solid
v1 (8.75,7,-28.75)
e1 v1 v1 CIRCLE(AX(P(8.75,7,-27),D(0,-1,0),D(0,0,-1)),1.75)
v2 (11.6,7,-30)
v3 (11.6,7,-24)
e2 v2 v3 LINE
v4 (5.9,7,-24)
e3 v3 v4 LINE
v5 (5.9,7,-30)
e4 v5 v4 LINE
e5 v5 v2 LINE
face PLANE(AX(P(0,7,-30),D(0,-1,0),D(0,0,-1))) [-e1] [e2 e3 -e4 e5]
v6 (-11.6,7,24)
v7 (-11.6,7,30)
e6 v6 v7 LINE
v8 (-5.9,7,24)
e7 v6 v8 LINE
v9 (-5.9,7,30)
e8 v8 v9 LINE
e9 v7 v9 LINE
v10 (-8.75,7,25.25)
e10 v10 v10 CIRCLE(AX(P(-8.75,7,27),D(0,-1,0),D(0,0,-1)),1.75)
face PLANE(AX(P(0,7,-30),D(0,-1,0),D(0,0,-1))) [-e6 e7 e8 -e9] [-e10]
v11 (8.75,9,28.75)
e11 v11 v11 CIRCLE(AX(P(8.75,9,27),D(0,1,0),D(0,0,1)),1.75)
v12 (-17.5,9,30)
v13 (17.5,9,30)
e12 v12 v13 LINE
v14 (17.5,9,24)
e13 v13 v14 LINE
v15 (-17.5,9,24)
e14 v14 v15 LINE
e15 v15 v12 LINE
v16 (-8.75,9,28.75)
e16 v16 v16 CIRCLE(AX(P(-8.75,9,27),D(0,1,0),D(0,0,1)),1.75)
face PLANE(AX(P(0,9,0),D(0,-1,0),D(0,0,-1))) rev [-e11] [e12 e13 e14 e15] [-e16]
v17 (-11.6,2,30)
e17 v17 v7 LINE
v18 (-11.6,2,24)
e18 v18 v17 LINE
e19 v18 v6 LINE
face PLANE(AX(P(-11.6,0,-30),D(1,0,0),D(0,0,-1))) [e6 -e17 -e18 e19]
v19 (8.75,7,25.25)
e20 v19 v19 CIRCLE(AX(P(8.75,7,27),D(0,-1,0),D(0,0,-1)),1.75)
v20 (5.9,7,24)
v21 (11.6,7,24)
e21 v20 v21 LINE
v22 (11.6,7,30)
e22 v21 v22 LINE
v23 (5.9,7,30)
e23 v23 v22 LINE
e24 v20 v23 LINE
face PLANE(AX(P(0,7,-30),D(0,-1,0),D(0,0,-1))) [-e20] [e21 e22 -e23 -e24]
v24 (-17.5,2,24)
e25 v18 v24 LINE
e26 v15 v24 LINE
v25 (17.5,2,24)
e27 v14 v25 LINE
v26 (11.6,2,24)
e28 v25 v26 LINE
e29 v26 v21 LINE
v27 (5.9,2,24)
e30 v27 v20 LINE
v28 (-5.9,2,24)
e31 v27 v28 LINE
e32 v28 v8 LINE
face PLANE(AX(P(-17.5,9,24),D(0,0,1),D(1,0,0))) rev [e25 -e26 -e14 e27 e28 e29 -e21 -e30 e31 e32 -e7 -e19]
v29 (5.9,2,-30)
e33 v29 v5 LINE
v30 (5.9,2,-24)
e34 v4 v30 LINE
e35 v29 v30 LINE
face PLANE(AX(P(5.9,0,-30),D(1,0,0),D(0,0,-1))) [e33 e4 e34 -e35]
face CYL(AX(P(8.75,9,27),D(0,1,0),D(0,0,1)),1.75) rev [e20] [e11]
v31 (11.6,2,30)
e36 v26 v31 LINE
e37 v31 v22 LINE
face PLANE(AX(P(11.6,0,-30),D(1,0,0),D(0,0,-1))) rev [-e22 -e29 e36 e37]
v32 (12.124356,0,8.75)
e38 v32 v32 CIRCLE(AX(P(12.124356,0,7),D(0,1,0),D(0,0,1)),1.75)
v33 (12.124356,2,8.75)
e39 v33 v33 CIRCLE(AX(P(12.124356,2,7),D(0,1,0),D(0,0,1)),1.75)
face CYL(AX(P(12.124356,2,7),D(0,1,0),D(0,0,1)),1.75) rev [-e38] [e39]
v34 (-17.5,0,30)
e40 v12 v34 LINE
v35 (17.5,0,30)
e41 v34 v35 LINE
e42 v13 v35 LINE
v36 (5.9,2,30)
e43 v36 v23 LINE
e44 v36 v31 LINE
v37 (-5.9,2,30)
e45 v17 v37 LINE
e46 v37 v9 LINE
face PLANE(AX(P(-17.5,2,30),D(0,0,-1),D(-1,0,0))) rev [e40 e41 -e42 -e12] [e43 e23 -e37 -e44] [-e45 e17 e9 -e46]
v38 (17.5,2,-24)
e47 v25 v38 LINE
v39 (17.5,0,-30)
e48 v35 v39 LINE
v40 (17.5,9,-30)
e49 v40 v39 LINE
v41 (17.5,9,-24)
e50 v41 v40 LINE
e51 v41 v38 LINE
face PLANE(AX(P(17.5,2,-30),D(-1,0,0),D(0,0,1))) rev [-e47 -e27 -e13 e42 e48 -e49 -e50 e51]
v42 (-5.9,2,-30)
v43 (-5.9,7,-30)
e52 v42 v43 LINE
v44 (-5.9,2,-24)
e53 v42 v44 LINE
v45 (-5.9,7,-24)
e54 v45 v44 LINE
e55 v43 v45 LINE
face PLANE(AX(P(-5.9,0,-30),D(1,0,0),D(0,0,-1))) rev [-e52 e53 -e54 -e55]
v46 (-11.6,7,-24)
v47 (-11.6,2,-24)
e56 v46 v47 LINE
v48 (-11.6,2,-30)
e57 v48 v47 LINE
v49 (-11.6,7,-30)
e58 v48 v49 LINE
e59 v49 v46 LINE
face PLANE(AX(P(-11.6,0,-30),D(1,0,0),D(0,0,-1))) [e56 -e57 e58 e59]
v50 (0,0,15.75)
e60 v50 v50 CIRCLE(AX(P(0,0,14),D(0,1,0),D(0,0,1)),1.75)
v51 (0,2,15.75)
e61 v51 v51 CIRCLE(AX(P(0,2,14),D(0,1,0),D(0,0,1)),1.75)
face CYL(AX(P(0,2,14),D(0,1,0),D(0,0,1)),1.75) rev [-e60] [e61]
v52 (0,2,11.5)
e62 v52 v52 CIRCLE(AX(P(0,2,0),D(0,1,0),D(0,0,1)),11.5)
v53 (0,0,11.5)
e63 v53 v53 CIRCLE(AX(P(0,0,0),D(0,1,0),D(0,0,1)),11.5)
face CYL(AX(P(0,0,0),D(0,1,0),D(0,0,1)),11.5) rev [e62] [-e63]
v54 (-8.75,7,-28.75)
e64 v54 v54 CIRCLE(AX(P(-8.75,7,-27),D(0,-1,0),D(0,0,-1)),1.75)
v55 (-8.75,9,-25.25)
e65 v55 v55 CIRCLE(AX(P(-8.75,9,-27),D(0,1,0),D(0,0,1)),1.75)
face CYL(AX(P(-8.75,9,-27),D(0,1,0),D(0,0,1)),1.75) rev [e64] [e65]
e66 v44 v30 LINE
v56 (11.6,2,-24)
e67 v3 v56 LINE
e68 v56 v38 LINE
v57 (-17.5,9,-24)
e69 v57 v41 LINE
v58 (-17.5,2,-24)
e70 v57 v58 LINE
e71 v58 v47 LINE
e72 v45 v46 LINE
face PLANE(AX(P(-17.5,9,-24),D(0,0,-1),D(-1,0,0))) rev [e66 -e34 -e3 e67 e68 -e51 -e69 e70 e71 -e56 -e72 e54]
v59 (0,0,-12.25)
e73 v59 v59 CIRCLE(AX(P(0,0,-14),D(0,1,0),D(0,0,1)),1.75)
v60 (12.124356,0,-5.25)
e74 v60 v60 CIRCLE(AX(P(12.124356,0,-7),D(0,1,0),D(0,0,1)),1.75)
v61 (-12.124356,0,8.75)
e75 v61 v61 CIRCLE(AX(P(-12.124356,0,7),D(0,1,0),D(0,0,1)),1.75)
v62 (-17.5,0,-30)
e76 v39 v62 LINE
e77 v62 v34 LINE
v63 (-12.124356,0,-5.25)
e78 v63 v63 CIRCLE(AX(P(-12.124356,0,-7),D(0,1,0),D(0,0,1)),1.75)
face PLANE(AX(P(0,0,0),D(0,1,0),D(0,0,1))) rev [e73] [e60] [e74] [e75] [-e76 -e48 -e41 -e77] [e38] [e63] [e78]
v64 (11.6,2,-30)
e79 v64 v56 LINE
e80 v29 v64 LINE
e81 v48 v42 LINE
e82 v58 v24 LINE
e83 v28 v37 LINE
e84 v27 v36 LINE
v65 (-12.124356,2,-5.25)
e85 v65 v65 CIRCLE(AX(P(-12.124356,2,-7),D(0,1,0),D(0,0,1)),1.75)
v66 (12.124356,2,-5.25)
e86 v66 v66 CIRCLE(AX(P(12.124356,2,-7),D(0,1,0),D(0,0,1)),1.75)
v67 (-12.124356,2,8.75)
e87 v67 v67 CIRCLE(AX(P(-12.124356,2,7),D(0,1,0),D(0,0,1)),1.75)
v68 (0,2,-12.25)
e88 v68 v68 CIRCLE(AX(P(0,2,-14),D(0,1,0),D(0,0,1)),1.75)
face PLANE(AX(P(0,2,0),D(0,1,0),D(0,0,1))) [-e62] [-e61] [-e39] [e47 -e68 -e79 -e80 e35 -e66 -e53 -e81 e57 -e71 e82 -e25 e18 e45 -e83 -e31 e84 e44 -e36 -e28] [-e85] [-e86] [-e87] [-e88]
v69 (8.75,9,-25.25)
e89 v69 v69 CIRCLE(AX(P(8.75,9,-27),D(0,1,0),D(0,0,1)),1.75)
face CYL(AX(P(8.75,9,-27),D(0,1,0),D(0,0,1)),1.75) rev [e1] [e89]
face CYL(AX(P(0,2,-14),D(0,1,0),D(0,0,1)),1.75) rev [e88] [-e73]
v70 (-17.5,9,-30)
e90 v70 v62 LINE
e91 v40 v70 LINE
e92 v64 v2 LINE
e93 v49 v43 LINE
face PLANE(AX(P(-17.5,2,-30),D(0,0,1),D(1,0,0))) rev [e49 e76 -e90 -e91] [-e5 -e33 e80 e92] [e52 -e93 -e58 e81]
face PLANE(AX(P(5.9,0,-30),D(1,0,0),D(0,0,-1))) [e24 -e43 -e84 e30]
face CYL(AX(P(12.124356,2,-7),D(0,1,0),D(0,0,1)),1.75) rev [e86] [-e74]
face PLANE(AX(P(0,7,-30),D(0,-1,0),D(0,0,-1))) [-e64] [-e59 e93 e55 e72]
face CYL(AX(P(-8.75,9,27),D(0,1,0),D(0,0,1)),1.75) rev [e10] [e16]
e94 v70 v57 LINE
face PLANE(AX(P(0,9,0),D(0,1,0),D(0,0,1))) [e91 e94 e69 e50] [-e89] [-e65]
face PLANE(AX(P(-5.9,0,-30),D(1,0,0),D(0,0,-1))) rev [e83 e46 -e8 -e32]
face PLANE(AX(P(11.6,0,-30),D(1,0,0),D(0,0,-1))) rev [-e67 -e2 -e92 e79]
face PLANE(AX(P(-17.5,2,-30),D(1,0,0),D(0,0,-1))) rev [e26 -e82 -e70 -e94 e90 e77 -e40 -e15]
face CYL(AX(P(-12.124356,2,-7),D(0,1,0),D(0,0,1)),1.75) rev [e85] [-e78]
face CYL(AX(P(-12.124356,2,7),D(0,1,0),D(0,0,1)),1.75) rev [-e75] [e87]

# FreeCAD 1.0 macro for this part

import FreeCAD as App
import Part
import Sketcher
Q = App.Units.Quantity

doc = App.newDocument("Part")
params = doc.addObject("Spreadsheet::Sheet", "Params")
for row, (alias, value) in enumerate([
    ("sketch1_width", "35 mm"),
    ("sketch1_height", "60 mm"),
    ("pad1_length", "2 mm"),
    ("sketch2_diameter", "3.5 mm"),
    ("hole_diameter", "3.5 mm"),
    ("sketch3_diameter", "23 mm"),
    ("pocket1_length", "2 mm"),
    ("sketch4_width", "35 mm"),
    ("sketch4_height", "6 mm"),
    ("pad2_length", "7 mm"),
    ("sketch5_height", "5 mm"),
    ("sketch5_width", "5.7 mm"),
    ("sketch6_diameter", "3.5 mm"),
    ("hole2_diameter", "3.5 mm"),
    ("hole2_depth", "2 mm"),
], start=1):
    params.set(f"A{row}", alias)
    params.set(f"B{row}", "=" + value)
    params.setAlias(f"B{row}", alias)

body = doc.addObject("PartDesign::Body", "Body")

# Sketch on XZ plane
sketch1 = body.newObject("Sketcher::SketchObject", "Sketch")
sketch1.AttachmentSupport = (doc.getObject("XZ_Plane"), [""])
sketch1.MapMode = "FlatFace"
sketch1.addGeometry(Part.LineSegment(App.Vector(-18, -30, 0), App.Vector(-18, 30, 0)), False)
sketch1.addGeometry(Part.LineSegment(App.Vector(-18, 30, 0), App.Vector(18, 30, 0)), False)
sketch1.addGeometry(Part.LineSegment(App.Vector(18, 30, 0), App.Vector(18, -30, 0)), False)
sketch1.addGeometry(Part.LineSegment(App.Vector(18, -30, 0), App.Vector(-18, -30, 0)), False)
sketch1.addConstraint(Sketcher.Constraint("Coincident", 0, 2, 1, 1))
sketch1.addConstraint(Sketcher.Constraint("Coincident", 1, 2, 2, 1))
sketch1.addConstraint(Sketcher.Constraint("Coincident", 2, 2, 3, 1))
sketch1.addConstraint(Sketcher.Constraint("Coincident", 3, 2, 0, 1))
sketch1.addConstraint(Sketcher.Constraint("Vertical", 0))
sketch1.addConstraint(Sketcher.Constraint("Horizontal", 1))
sketch1.addConstraint(Sketcher.Constraint("Vertical", 2))
sketch1.addConstraint(Sketcher.Constraint("Horizontal", 3))
sketch1.addConstraint(Sketcher.Constraint("Symmetric", 0, 2, 2, 2, -1, 1))
sketch1.addConstraint(Sketcher.Constraint("DistanceX", 1, 1, 1, 2, Q("35 mm")))
sketch1.addConstraint(Sketcher.Constraint("DistanceY", 0, 1, 0, 2, Q("60 mm")))
sketch1.setExpression("Constraints[9]", "Params.sketch1_width")
sketch1.setExpression("Constraints[10]", "Params.sketch1_height")
pad1 = body.newObject("PartDesign::Pad", "Pad")
pad1.Profile = sketch1
pad1.setExpression("Length", "Params.pad1_length")
pad1.Reversed = True

# Sketch on XZ plane
sketch2 = body.newObject("Sketcher::SketchObject", "Sketch001")
sketch2.AttachmentSupport = (doc.getObject("XZ_Plane"), [""])
sketch2.MapMode = "FlatFace"
sketch2.AttachmentOffset = App.Placement(App.Vector(0, 0, -2), App.Rotation())
sketch2.addGeometry(Part.Circle(App.Vector(0, -14, 0), App.Vector(0, 0, 1), 1.8), False)
sketch2.addConstraint(Sketcher.Constraint("PointOnObject", 0, 3, -2))
sketch2.addConstraint(Sketcher.Constraint("Diameter", 0, Q("3.5 mm")))
sketch2.addConstraint(Sketcher.Constraint("DistanceY", 0, 3, -1, 1, Q("14 mm")))
sketch2.setExpression("Constraints[1]", "Params.sketch2_diameter")
doc.recompute()
hole = body.newObject("PartDesign::Hole", "Hole")
hole.Profile = sketch2
hole.ThreadType = "None"
hole.setExpression("Diameter", "Params.hole_diameter")
hole.DepthType = "ThroughAll"
hole.Reversed = True
doc.recompute()

polarpattern = body.newObject("PartDesign::PolarPattern", "PolarPattern")
polarpattern.Originals = [hole]
polarpattern.Axis = (doc.getObject("Y_Axis"), [""])
polarpattern.Angle = 360
polarpattern.Occurrences = 6
body.Tip = polarpattern

# Sketch on XZ plane
sketch3 = body.newObject("Sketcher::SketchObject", "Sketch002")
sketch3.AttachmentSupport = (doc.getObject("XZ_Plane"), [""])
sketch3.MapMode = "FlatFace"
sketch3.AttachmentOffset = App.Placement(App.Vector(0, 0, -2), App.Rotation())
sketch3.addGeometry(Part.Circle(App.Vector(0, 0, 0), App.Vector(0, 0, 1), 12), False)
sketch3.addConstraint(Sketcher.Constraint("Coincident", 0, 3, -1, 1))
sketch3.addConstraint(Sketcher.Constraint("Diameter", 0, Q("23 mm")))
sketch3.setExpression("Constraints[1]", "Params.sketch3_diameter")
pocket1 = body.newObject("PartDesign::Pocket", "Pocket")
pocket1.Profile = sketch3
pocket1.setExpression("Length", "Params.pocket1_length")
pocket1.Reversed = True

# Sketch on XZ plane
sketch4 = body.newObject("Sketcher::SketchObject", "Sketch003")
sketch4.AttachmentSupport = (doc.getObject("XZ_Plane"), [""])
sketch4.MapMode = "FlatFace"
sketch4.AttachmentOffset = App.Placement(App.Vector(0, 0, -2), App.Rotation())
sketch4.addGeometry(Part.LineSegment(App.Vector(-18, 24, 0), App.Vector(-18, 30, 0)), False)
sketch4.addGeometry(Part.LineSegment(App.Vector(-18, 30, 0), App.Vector(18, 30, 0)), False)
sketch4.addGeometry(Part.LineSegment(App.Vector(18, 30, 0), App.Vector(18, 24, 0)), False)
sketch4.addGeometry(Part.LineSegment(App.Vector(18, 24, 0), App.Vector(-18, 24, 0)), False)
sketch4.addGeometry(Part.LineSegment(App.Vector(-18, -30, 0), App.Vector(-18, -24, 0)), False)
sketch4.addGeometry(Part.LineSegment(App.Vector(-18, -24, 0), App.Vector(18, -24, 0)), False)
sketch4.addGeometry(Part.LineSegment(App.Vector(18, -24, 0), App.Vector(18, -30, 0)), False)
sketch4.addGeometry(Part.LineSegment(App.Vector(18, -30, 0), App.Vector(-18, -30, 0)), False)
sketch4.addConstraint(Sketcher.Constraint("Coincident", 0, 2, 1, 1))
sketch4.addConstraint(Sketcher.Constraint("Coincident", 1, 2, 2, 1))
sketch4.addConstraint(Sketcher.Constraint("Coincident", 2, 2, 3, 1))
sketch4.addConstraint(Sketcher.Constraint("Coincident", 3, 2, 0, 1))
sketch4.addConstraint(Sketcher.Constraint("Coincident", 4, 2, 5, 1))
sketch4.addConstraint(Sketcher.Constraint("Coincident", 5, 2, 6, 1))
sketch4.addConstraint(Sketcher.Constraint("Coincident", 6, 2, 7, 1))
sketch4.addConstraint(Sketcher.Constraint("Coincident", 7, 2, 4, 1))
sketch4.addConstraint(Sketcher.Constraint("Vertical", 0))
sketch4.addConstraint(Sketcher.Constraint("Horizontal", 1))
sketch4.addConstraint(Sketcher.Constraint("Vertical", 2))
sketch4.addConstraint(Sketcher.Constraint("Horizontal", 3))
sketch4.addConstraint(Sketcher.Constraint("Vertical", 4))
sketch4.addConstraint(Sketcher.Constraint("Horizontal", 5))
sketch4.addConstraint(Sketcher.Constraint("Vertical", 6))
sketch4.addConstraint(Sketcher.Constraint("Horizontal", 7))
sketch4.addConstraint(Sketcher.Constraint("Symmetric", 2, 2, 4, 2, -1, 1))
sketch4.addConstraint(Sketcher.Constraint("Symmetric", 0, 2, 6, 2, -1, 1))
sketch4.addConstraint(Sketcher.Constraint("Vertical", 3, 2, 4, 2))
sketch4.addConstraint(Sketcher.Constraint("DistanceX", 1, 1, 1, 2, Q("35 mm")))
sketch4.addConstraint(Sketcher.Constraint("DistanceY", 0, 1, 0, 2, Q("6 mm")))
sketch4.addConstraint(Sketcher.Constraint("DistanceY", -1, 1, 0, 2, Q("30 mm")))
sketch4.setExpression("Constraints[19]", "Params.sketch4_width")
sketch4.setExpression("Constraints[20]", "Params.sketch4_height")
pad2 = body.newObject("PartDesign::Pad", "Pad001")
pad2.Profile = sketch4
pad2.setExpression("Length", "Params.pad2_length")
pad2.Reversed = True

# Sketch on XY plane
sketch5 = body.newObject("Sketcher::SketchObject", "Sketch004")
sketch5.AttachmentSupport = (doc.getObject("XY_Plane"), [""])
sketch5.MapMode = "FlatFace"
sketch5.AttachmentOffset = App.Placement(App.Vector(0, 0, 30), App.Rotation())
sketch5.addGeometry(Part.LineSegment(App.Vector(-12, 7, 0), App.Vector(-12, 2, 0)), False)
sketch5.addGeometry(Part.LineSegment(App.Vector(-12, 2, 0), App.Vector(-6, 2, 0)), False)
sketch5.addGeometry(Part.LineSegment(App.Vector(-6, 2, 0), App.Vector(-6, 7, 0)), False)
sketch5.addGeometry(Part.LineSegment(App.Vector(-6, 7, 0), App.Vector(-12, 7, 0)), False)
sketch5.addGeometry(Part.LineSegment(App.Vector(12, 2, 0), App.Vector(12, 7, 0)), False)
sketch5.addGeometry(Part.LineSegment(App.Vector(12, 7, 0), App.Vector(6, 7, 0)), False)
sketch5.addGeometry(Part.LineSegment(App.Vector(6, 7, 0), App.Vector(6, 2, 0)), False)
sketch5.addGeometry(Part.LineSegment(App.Vector(6, 2, 0), App.Vector(12, 2, 0)), False)
sketch5.addConstraint(Sketcher.Constraint("Coincident", 0, 2, 1, 1))
sketch5.addConstraint(Sketcher.Constraint("Coincident", 1, 2, 2, 1))
sketch5.addConstraint(Sketcher.Constraint("Coincident", 2, 2, 3, 1))
sketch5.addConstraint(Sketcher.Constraint("Coincident", 3, 2, 0, 1))
sketch5.addConstraint(Sketcher.Constraint("Coincident", 4, 2, 5, 1))
sketch5.addConstraint(Sketcher.Constraint("Coincident", 5, 2, 6, 1))
sketch5.addConstraint(Sketcher.Constraint("Coincident", 6, 2, 7, 1))
sketch5.addConstraint(Sketcher.Constraint("Coincident", 7, 2, 4, 1))
sketch5.addConstraint(Sketcher.Constraint("Vertical", 0))
sketch5.addConstraint(Sketcher.Constraint("Horizontal", 1))
sketch5.addConstraint(Sketcher.Constraint("Vertical", 2))
sketch5.addConstraint(Sketcher.Constraint("Horizontal", 3))
sketch5.addConstraint(Sketcher.Constraint("Vertical", 4))
sketch5.addConstraint(Sketcher.Constraint("Horizontal", 5))
sketch5.addConstraint(Sketcher.Constraint("Vertical", 6))
sketch5.addConstraint(Sketcher.Constraint("Horizontal", 7))
sketch5.addConstraint(Sketcher.Constraint("Symmetric", 3, 2, 4, 2, -2))
sketch5.addConstraint(Sketcher.Constraint("Symmetric", 1, 2, 6, 2, -2))
sketch5.addConstraint(Sketcher.Constraint("DistanceY", 0, 2, 0, 1, Q("5 mm")))
sketch5.addConstraint(Sketcher.Constraint("DistanceX", 1, 1, 1, 2, Q("5.7 mm")))
sketch5.addConstraint(Sketcher.Constraint("DistanceY", -1, 1, 0, 2, Q("2 mm")))
sketch5.addConstraint(Sketcher.Constraint("DistanceX", 0, 2, -1, 1, Q("11.6 mm")))
sketch5.setExpression("Constraints[18]", "Params.sketch5_height")
sketch5.setExpression("Constraints[19]", "Params.sketch5_width")
pocket2 = body.newObject("PartDesign::Pocket", "Pocket001")
pocket2.Profile = sketch5
pocket2.Type = "ThroughAll"

# Sketch on XZ plane
sketch6 = body.newObject("Sketcher::SketchObject", "Sketch005")
sketch6.AttachmentSupport = (doc.getObject("XZ_Plane"), [""])
sketch6.MapMode = "FlatFace"
sketch6.AttachmentOffset = App.Placement(App.Vector(0, 0, -9), App.Rotation())
sketch6.addGeometry(Part.Circle(App.Vector(-8.8, -27, 0), App.Vector(0, 0, 1), 1.8), False)
sketch6.addGeometry(Part.Circle(App.Vector(8.8, -27, 0), App.Vector(0, 0, 1), 1.8), False)
sketch6.addGeometry(Part.Circle(App.Vector(-8.8, 27, 0), App.Vector(0, 0, 1), 1.8), False)
sketch6.addGeometry(Part.Circle(App.Vector(8.8, 27, 0), App.Vector(0, 0, 1), 1.8), False)
sketch6.addConstraint(Sketcher.Constraint("Equal", 0, 1))
sketch6.addConstraint(Sketcher.Constraint("Equal", 1, 2))
sketch6.addConstraint(Sketcher.Constraint("Equal", 2, 3))
sketch6.addConstraint(Sketcher.Constraint("Symmetric", 1, 3, 2, 3, -1, 1))
sketch6.addConstraint(Sketcher.Constraint("Symmetric", 0, 3, 3, 3, -1, 1))
sketch6.addConstraint(Sketcher.Constraint("Symmetric", 0, 3, 1, 3, -2))
sketch6.addConstraint(Sketcher.Constraint("Diameter", 0, Q("3.5 mm")))
sketch6.addConstraint(Sketcher.Constraint("DistanceY", 0, 3, -1, 1, Q("27 mm")))
sketch6.addConstraint(Sketcher.Constraint("DistanceX", 0, 3, 1, 3, Q("17.5 mm")))
sketch6.setExpression("Constraints[6]", "Params.sketch6_diameter")
doc.recompute()
hole2 = body.newObject("PartDesign::Hole", "Hole001")
hole2.Profile = sketch6
hole2.ThreadType = "None"
hole2.setExpression("Diameter", "Params.hole2_diameter")
hole2.DepthType = "Dimension"
hole2.setExpression("Depth", "Params.hole2_depth")
hole2.DrillPoint = "Flat"
hole2.Reversed = True

doc.recompute()
